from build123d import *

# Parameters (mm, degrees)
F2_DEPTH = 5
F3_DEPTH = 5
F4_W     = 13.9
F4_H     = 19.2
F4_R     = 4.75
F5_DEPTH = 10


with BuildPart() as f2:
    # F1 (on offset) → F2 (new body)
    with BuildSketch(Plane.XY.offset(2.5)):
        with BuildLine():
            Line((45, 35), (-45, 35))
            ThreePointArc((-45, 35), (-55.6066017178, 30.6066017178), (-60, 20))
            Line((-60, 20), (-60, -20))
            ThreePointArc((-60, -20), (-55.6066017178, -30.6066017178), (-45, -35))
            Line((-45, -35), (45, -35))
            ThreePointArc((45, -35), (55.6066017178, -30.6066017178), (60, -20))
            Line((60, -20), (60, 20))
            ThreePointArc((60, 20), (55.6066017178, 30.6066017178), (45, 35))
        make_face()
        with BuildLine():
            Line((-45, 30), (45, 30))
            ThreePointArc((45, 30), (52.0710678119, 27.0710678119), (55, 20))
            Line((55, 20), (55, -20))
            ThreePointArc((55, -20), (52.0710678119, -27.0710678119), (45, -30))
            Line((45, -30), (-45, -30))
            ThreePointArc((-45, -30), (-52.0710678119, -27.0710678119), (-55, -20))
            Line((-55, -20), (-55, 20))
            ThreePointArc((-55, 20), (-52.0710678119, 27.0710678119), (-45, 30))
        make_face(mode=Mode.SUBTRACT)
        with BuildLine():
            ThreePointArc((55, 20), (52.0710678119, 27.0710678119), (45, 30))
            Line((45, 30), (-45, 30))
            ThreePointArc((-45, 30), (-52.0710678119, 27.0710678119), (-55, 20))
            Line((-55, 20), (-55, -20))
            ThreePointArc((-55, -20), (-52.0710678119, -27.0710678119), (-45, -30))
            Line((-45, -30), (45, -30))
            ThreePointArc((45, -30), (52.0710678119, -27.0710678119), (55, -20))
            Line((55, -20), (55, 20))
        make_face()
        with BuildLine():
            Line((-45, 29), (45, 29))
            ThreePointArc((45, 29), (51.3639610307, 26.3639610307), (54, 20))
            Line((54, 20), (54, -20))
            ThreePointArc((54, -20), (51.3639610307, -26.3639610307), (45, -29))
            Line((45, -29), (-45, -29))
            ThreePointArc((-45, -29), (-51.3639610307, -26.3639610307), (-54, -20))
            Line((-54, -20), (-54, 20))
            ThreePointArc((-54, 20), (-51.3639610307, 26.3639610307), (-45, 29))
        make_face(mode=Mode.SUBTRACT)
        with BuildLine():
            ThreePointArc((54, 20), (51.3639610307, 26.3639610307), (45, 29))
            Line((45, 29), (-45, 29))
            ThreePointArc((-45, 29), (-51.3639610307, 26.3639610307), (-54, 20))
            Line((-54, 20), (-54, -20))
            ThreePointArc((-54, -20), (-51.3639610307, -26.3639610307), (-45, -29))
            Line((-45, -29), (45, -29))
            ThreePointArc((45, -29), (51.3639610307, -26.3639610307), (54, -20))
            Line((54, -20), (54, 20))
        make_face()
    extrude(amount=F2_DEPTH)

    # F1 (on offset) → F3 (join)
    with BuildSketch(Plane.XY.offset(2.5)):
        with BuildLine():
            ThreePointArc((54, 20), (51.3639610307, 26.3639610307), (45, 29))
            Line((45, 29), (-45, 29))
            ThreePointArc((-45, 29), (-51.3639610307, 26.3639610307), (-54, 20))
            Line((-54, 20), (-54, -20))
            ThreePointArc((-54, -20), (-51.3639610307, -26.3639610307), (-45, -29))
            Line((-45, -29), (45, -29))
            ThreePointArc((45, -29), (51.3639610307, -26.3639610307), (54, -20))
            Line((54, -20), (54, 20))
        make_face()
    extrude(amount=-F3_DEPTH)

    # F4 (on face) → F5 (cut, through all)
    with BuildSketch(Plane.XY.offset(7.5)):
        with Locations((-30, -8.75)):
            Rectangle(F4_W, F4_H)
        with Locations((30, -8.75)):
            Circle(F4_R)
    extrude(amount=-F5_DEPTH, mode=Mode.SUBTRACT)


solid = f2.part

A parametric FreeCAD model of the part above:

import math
import FreeCAD as App
import Part
import Sketcher
from FreeCAD import Vector


def add_polygon(sketch, points):
    """Adds a closed chain of lines whose ends are joined by coincident constraints."""
    first, n = sketch.GeometryCount, len(points)
    for a, b in zip(points, points[1:] + points[:1]):
        sketch.addGeometry(Part.LineSegment(App.Vector(*a, 0), App.Vector(*b, 0)), False)
    for i in range(n):
        sketch.addConstraint(Sketcher.Constraint("Coincident", first + i, 2, first + (i + 1) % n, 1))

doc = App.newDocument("Part")
body = doc.addObject("PartDesign::Body", "Body")

sketch1 = body.newObject("Sketcher::SketchObject", "Sketch")
sketch1.AttachmentSupport = (doc.getObject("XY_Plane"), [""])
sketch1.MapMode = "FlatFace"
sketch1.AttachmentOffset = App.Placement(Vector(0, 0, 2.5), App.Rotation())
sketch1.addGeometry([
    Part.LineSegment(Vector(45, 35, 0), Vector(-45, 35, 0)),
    Part.ArcOfCircle(Part.Circle(Vector(-45, 20, 0), Vector(0, 0, 1), 15), math.radians(90), math.radians(180)),
    Part.LineSegment(Vector(-60, 20, 0), Vector(-60, -20, 0)),
    Part.ArcOfCircle(Part.Circle(Vector(-45, -20, 0), Vector(0, 0, 1), 15), math.radians(180), math.radians(270)),
    Part.LineSegment(Vector(-45, -35, 0), Vector(45, -35, 0)),
    Part.ArcOfCircle(Part.Circle(Vector(45, -20, 0), Vector(0, 0, 1), 15), math.radians(-90), math.radians(0)),
    Part.LineSegment(Vector(60, -20, 0), Vector(60, 20, 0)),
    Part.ArcOfCircle(Part.Circle(Vector(45, 20, 0), Vector(0, 0, 1), 15), math.radians(0), math.radians(90)),
], False)
sketch1.addConstraint([
    Sketcher.Constraint("Tangent", 0, 2, 1, 1),
    Sketcher.Constraint("Tangent", 1, 2, 2, 1),
    Sketcher.Constraint("Tangent", 2, 2, 3, 1),
    Sketcher.Constraint("Tangent", 3, 2, 4, 1),
    Sketcher.Constraint("Tangent", 4, 2, 5, 1),
    Sketcher.Constraint("Tangent", 5, 2, 6, 1),
    Sketcher.Constraint("Tangent", 6, 2, 7, 1),
    Sketcher.Constraint("Tangent", 7, 2, 0, 1),
    Sketcher.Constraint("Horizontal", 0),
    Sketcher.Constraint("Vertical", 2),
    Sketcher.Constraint("Horizontal", 4),
    Sketcher.Constraint("Vertical", 6),
    Sketcher.Constraint("Equal", 1, 3),
    Sketcher.Constraint("Equal", 3, 5),
    Sketcher.Constraint("Equal", 5, 7),
    Sketcher.Constraint("Symmetric", 1, 3, 5, 3, -1, 1),
    Sketcher.Constraint("Radius", 1, 15.0),
    Sketcher.Constraint("DistanceX", 0, 2, 0, 1, 90.0),
    Sketcher.Constraint("DistanceY", 2, 2, 2, 1, 40.0),
])
pad1 = body.newObject("PartDesign::Pad", "Pad")
pad1.Profile = sketch1
pad1.Length = 5

sketch2 = body.newObject("Sketcher::SketchObject", "Sketch001")
sketch2.AttachmentSupport = (doc.getObject("XY_Plane"), [""])
sketch2.MapMode = "FlatFace"
sketch2.AttachmentOffset = App.Placement(Vector(0, 0, 2.5), App.Rotation())
sketch2.addGeometry([
    Part.ArcOfCircle(Part.Circle(Vector(45, 20, 0), Vector(0, 0, 1), 9), math.radians(0), math.radians(90)),
    Part.LineSegment(Vector(45, 29, 0), Vector(-45, 29, 0)),
    Part.ArcOfCircle(Part.Circle(Vector(-45, 20, 0), Vector(0, 0, 1), 9), math.radians(90), math.radians(180)),
    Part.LineSegment(Vector(-54, 20, 0), Vector(-54, -20, 0)),
    Part.ArcOfCircle(Part.Circle(Vector(-45, -20, 0), Vector(0, 0, 1), 9), math.radians(180), math.radians(270)),
    Part.LineSegment(Vector(-45, -29, 0), Vector(45, -29, 0)),
    Part.ArcOfCircle(Part.Circle(Vector(45, -20, 0), Vector(0, 0, 1), 9), math.radians(-90), math.radians(0)),
    Part.LineSegment(Vector(54, -20, 0), Vector(54, 20, 0)),
], False)
sketch2.addConstraint([
    Sketcher.Constraint("Tangent", 0, 2, 1, 1),
    Sketcher.Constraint("Tangent", 1, 2, 2, 1),
    Sketcher.Constraint("Tangent", 2, 2, 3, 1),
    Sketcher.Constraint("Tangent", 3, 2, 4, 1),
    Sketcher.Constraint("Tangent", 4, 2, 5, 1),
    Sketcher.Constraint("Tangent", 5, 2, 6, 1),
    Sketcher.Constraint("Tangent", 6, 2, 7, 1),
    Sketcher.Constraint("Tangent", 7, 2, 0, 1),
    Sketcher.Constraint("Horizontal", 1),
    Sketcher.Constraint("Vertical", 3),
    Sketcher.Constraint("Horizontal", 5),
    Sketcher.Constraint("Vertical", 7),
    Sketcher.Constraint("Equal", 0, 2),
    Sketcher.Constraint("Equal", 2, 4),
    Sketcher.Constraint("Equal", 4, 6),
    Sketcher.Constraint("Symmetric", 0, 3, 4, 3, -1, 1),
    Sketcher.Constraint("Radius", 0, 9.0),
    Sketcher.Constraint("DistanceX", 1, 2, 1, 1, 90.0),
    Sketcher.Constraint("DistanceY", 3, 2, 3, 1, 40.0),
])
pad2 = body.newObject("PartDesign::Pad", "Pad001")
pad2.Profile = sketch2
pad2.Length = 5
pad2.Reversed = True

sketch3 = body.newObject("Sketcher::SketchObject", "Sketch002")
sketch3.AttachmentSupport = (doc.getObject("XY_Plane"), [""])
sketch3.MapMode = "FlatFace"
sketch3.AttachmentOffset = App.Placement(Vector(0, 0, 7.5), App.Rotation())
add_polygon(sketch3, [(-37, 0.8), (-37, -18.4), (-23.1, -18.4), (-23.1, 0.8)])
sketch3.addGeometry(Part.Circle(Vector(30, -8.8, 0), Vector(0, 0, 1), 4.8), False)
sketch3.addConstraint([
    Sketcher.Constraint("Vertical", 0),
    Sketcher.Constraint("Horizontal", 1),
    Sketcher.Constraint("Vertical", 2),
    Sketcher.Constraint("Horizontal", 3),
    Sketcher.Constraint("Diameter", 4, 9.5),
    Sketcher.Constraint("DistanceX", 1, 1, 1, 2, 13.9),
    Sketcher.Constraint("DistanceY", 0, 2, 0, 1, 19.2),
    Sketcher.Constraint("DistanceX", -1, 1, 4, 3, 30.0),
    Sketcher.Constraint("DistanceY", 0, 2, 4, 3, 9.6),
    Sketcher.Constraint("DistanceY", 4, 3, -1, 1, 8.75),
    Sketcher.Constraint("DistanceX", 0, 2, -1, 1, 36.95),
])
pocket1 = body.newObject("PartDesign::Pocket", "Pocket")
pocket1.Profile = sketch3
pocket1.Type = "ThroughAll"

doc.recompute()
